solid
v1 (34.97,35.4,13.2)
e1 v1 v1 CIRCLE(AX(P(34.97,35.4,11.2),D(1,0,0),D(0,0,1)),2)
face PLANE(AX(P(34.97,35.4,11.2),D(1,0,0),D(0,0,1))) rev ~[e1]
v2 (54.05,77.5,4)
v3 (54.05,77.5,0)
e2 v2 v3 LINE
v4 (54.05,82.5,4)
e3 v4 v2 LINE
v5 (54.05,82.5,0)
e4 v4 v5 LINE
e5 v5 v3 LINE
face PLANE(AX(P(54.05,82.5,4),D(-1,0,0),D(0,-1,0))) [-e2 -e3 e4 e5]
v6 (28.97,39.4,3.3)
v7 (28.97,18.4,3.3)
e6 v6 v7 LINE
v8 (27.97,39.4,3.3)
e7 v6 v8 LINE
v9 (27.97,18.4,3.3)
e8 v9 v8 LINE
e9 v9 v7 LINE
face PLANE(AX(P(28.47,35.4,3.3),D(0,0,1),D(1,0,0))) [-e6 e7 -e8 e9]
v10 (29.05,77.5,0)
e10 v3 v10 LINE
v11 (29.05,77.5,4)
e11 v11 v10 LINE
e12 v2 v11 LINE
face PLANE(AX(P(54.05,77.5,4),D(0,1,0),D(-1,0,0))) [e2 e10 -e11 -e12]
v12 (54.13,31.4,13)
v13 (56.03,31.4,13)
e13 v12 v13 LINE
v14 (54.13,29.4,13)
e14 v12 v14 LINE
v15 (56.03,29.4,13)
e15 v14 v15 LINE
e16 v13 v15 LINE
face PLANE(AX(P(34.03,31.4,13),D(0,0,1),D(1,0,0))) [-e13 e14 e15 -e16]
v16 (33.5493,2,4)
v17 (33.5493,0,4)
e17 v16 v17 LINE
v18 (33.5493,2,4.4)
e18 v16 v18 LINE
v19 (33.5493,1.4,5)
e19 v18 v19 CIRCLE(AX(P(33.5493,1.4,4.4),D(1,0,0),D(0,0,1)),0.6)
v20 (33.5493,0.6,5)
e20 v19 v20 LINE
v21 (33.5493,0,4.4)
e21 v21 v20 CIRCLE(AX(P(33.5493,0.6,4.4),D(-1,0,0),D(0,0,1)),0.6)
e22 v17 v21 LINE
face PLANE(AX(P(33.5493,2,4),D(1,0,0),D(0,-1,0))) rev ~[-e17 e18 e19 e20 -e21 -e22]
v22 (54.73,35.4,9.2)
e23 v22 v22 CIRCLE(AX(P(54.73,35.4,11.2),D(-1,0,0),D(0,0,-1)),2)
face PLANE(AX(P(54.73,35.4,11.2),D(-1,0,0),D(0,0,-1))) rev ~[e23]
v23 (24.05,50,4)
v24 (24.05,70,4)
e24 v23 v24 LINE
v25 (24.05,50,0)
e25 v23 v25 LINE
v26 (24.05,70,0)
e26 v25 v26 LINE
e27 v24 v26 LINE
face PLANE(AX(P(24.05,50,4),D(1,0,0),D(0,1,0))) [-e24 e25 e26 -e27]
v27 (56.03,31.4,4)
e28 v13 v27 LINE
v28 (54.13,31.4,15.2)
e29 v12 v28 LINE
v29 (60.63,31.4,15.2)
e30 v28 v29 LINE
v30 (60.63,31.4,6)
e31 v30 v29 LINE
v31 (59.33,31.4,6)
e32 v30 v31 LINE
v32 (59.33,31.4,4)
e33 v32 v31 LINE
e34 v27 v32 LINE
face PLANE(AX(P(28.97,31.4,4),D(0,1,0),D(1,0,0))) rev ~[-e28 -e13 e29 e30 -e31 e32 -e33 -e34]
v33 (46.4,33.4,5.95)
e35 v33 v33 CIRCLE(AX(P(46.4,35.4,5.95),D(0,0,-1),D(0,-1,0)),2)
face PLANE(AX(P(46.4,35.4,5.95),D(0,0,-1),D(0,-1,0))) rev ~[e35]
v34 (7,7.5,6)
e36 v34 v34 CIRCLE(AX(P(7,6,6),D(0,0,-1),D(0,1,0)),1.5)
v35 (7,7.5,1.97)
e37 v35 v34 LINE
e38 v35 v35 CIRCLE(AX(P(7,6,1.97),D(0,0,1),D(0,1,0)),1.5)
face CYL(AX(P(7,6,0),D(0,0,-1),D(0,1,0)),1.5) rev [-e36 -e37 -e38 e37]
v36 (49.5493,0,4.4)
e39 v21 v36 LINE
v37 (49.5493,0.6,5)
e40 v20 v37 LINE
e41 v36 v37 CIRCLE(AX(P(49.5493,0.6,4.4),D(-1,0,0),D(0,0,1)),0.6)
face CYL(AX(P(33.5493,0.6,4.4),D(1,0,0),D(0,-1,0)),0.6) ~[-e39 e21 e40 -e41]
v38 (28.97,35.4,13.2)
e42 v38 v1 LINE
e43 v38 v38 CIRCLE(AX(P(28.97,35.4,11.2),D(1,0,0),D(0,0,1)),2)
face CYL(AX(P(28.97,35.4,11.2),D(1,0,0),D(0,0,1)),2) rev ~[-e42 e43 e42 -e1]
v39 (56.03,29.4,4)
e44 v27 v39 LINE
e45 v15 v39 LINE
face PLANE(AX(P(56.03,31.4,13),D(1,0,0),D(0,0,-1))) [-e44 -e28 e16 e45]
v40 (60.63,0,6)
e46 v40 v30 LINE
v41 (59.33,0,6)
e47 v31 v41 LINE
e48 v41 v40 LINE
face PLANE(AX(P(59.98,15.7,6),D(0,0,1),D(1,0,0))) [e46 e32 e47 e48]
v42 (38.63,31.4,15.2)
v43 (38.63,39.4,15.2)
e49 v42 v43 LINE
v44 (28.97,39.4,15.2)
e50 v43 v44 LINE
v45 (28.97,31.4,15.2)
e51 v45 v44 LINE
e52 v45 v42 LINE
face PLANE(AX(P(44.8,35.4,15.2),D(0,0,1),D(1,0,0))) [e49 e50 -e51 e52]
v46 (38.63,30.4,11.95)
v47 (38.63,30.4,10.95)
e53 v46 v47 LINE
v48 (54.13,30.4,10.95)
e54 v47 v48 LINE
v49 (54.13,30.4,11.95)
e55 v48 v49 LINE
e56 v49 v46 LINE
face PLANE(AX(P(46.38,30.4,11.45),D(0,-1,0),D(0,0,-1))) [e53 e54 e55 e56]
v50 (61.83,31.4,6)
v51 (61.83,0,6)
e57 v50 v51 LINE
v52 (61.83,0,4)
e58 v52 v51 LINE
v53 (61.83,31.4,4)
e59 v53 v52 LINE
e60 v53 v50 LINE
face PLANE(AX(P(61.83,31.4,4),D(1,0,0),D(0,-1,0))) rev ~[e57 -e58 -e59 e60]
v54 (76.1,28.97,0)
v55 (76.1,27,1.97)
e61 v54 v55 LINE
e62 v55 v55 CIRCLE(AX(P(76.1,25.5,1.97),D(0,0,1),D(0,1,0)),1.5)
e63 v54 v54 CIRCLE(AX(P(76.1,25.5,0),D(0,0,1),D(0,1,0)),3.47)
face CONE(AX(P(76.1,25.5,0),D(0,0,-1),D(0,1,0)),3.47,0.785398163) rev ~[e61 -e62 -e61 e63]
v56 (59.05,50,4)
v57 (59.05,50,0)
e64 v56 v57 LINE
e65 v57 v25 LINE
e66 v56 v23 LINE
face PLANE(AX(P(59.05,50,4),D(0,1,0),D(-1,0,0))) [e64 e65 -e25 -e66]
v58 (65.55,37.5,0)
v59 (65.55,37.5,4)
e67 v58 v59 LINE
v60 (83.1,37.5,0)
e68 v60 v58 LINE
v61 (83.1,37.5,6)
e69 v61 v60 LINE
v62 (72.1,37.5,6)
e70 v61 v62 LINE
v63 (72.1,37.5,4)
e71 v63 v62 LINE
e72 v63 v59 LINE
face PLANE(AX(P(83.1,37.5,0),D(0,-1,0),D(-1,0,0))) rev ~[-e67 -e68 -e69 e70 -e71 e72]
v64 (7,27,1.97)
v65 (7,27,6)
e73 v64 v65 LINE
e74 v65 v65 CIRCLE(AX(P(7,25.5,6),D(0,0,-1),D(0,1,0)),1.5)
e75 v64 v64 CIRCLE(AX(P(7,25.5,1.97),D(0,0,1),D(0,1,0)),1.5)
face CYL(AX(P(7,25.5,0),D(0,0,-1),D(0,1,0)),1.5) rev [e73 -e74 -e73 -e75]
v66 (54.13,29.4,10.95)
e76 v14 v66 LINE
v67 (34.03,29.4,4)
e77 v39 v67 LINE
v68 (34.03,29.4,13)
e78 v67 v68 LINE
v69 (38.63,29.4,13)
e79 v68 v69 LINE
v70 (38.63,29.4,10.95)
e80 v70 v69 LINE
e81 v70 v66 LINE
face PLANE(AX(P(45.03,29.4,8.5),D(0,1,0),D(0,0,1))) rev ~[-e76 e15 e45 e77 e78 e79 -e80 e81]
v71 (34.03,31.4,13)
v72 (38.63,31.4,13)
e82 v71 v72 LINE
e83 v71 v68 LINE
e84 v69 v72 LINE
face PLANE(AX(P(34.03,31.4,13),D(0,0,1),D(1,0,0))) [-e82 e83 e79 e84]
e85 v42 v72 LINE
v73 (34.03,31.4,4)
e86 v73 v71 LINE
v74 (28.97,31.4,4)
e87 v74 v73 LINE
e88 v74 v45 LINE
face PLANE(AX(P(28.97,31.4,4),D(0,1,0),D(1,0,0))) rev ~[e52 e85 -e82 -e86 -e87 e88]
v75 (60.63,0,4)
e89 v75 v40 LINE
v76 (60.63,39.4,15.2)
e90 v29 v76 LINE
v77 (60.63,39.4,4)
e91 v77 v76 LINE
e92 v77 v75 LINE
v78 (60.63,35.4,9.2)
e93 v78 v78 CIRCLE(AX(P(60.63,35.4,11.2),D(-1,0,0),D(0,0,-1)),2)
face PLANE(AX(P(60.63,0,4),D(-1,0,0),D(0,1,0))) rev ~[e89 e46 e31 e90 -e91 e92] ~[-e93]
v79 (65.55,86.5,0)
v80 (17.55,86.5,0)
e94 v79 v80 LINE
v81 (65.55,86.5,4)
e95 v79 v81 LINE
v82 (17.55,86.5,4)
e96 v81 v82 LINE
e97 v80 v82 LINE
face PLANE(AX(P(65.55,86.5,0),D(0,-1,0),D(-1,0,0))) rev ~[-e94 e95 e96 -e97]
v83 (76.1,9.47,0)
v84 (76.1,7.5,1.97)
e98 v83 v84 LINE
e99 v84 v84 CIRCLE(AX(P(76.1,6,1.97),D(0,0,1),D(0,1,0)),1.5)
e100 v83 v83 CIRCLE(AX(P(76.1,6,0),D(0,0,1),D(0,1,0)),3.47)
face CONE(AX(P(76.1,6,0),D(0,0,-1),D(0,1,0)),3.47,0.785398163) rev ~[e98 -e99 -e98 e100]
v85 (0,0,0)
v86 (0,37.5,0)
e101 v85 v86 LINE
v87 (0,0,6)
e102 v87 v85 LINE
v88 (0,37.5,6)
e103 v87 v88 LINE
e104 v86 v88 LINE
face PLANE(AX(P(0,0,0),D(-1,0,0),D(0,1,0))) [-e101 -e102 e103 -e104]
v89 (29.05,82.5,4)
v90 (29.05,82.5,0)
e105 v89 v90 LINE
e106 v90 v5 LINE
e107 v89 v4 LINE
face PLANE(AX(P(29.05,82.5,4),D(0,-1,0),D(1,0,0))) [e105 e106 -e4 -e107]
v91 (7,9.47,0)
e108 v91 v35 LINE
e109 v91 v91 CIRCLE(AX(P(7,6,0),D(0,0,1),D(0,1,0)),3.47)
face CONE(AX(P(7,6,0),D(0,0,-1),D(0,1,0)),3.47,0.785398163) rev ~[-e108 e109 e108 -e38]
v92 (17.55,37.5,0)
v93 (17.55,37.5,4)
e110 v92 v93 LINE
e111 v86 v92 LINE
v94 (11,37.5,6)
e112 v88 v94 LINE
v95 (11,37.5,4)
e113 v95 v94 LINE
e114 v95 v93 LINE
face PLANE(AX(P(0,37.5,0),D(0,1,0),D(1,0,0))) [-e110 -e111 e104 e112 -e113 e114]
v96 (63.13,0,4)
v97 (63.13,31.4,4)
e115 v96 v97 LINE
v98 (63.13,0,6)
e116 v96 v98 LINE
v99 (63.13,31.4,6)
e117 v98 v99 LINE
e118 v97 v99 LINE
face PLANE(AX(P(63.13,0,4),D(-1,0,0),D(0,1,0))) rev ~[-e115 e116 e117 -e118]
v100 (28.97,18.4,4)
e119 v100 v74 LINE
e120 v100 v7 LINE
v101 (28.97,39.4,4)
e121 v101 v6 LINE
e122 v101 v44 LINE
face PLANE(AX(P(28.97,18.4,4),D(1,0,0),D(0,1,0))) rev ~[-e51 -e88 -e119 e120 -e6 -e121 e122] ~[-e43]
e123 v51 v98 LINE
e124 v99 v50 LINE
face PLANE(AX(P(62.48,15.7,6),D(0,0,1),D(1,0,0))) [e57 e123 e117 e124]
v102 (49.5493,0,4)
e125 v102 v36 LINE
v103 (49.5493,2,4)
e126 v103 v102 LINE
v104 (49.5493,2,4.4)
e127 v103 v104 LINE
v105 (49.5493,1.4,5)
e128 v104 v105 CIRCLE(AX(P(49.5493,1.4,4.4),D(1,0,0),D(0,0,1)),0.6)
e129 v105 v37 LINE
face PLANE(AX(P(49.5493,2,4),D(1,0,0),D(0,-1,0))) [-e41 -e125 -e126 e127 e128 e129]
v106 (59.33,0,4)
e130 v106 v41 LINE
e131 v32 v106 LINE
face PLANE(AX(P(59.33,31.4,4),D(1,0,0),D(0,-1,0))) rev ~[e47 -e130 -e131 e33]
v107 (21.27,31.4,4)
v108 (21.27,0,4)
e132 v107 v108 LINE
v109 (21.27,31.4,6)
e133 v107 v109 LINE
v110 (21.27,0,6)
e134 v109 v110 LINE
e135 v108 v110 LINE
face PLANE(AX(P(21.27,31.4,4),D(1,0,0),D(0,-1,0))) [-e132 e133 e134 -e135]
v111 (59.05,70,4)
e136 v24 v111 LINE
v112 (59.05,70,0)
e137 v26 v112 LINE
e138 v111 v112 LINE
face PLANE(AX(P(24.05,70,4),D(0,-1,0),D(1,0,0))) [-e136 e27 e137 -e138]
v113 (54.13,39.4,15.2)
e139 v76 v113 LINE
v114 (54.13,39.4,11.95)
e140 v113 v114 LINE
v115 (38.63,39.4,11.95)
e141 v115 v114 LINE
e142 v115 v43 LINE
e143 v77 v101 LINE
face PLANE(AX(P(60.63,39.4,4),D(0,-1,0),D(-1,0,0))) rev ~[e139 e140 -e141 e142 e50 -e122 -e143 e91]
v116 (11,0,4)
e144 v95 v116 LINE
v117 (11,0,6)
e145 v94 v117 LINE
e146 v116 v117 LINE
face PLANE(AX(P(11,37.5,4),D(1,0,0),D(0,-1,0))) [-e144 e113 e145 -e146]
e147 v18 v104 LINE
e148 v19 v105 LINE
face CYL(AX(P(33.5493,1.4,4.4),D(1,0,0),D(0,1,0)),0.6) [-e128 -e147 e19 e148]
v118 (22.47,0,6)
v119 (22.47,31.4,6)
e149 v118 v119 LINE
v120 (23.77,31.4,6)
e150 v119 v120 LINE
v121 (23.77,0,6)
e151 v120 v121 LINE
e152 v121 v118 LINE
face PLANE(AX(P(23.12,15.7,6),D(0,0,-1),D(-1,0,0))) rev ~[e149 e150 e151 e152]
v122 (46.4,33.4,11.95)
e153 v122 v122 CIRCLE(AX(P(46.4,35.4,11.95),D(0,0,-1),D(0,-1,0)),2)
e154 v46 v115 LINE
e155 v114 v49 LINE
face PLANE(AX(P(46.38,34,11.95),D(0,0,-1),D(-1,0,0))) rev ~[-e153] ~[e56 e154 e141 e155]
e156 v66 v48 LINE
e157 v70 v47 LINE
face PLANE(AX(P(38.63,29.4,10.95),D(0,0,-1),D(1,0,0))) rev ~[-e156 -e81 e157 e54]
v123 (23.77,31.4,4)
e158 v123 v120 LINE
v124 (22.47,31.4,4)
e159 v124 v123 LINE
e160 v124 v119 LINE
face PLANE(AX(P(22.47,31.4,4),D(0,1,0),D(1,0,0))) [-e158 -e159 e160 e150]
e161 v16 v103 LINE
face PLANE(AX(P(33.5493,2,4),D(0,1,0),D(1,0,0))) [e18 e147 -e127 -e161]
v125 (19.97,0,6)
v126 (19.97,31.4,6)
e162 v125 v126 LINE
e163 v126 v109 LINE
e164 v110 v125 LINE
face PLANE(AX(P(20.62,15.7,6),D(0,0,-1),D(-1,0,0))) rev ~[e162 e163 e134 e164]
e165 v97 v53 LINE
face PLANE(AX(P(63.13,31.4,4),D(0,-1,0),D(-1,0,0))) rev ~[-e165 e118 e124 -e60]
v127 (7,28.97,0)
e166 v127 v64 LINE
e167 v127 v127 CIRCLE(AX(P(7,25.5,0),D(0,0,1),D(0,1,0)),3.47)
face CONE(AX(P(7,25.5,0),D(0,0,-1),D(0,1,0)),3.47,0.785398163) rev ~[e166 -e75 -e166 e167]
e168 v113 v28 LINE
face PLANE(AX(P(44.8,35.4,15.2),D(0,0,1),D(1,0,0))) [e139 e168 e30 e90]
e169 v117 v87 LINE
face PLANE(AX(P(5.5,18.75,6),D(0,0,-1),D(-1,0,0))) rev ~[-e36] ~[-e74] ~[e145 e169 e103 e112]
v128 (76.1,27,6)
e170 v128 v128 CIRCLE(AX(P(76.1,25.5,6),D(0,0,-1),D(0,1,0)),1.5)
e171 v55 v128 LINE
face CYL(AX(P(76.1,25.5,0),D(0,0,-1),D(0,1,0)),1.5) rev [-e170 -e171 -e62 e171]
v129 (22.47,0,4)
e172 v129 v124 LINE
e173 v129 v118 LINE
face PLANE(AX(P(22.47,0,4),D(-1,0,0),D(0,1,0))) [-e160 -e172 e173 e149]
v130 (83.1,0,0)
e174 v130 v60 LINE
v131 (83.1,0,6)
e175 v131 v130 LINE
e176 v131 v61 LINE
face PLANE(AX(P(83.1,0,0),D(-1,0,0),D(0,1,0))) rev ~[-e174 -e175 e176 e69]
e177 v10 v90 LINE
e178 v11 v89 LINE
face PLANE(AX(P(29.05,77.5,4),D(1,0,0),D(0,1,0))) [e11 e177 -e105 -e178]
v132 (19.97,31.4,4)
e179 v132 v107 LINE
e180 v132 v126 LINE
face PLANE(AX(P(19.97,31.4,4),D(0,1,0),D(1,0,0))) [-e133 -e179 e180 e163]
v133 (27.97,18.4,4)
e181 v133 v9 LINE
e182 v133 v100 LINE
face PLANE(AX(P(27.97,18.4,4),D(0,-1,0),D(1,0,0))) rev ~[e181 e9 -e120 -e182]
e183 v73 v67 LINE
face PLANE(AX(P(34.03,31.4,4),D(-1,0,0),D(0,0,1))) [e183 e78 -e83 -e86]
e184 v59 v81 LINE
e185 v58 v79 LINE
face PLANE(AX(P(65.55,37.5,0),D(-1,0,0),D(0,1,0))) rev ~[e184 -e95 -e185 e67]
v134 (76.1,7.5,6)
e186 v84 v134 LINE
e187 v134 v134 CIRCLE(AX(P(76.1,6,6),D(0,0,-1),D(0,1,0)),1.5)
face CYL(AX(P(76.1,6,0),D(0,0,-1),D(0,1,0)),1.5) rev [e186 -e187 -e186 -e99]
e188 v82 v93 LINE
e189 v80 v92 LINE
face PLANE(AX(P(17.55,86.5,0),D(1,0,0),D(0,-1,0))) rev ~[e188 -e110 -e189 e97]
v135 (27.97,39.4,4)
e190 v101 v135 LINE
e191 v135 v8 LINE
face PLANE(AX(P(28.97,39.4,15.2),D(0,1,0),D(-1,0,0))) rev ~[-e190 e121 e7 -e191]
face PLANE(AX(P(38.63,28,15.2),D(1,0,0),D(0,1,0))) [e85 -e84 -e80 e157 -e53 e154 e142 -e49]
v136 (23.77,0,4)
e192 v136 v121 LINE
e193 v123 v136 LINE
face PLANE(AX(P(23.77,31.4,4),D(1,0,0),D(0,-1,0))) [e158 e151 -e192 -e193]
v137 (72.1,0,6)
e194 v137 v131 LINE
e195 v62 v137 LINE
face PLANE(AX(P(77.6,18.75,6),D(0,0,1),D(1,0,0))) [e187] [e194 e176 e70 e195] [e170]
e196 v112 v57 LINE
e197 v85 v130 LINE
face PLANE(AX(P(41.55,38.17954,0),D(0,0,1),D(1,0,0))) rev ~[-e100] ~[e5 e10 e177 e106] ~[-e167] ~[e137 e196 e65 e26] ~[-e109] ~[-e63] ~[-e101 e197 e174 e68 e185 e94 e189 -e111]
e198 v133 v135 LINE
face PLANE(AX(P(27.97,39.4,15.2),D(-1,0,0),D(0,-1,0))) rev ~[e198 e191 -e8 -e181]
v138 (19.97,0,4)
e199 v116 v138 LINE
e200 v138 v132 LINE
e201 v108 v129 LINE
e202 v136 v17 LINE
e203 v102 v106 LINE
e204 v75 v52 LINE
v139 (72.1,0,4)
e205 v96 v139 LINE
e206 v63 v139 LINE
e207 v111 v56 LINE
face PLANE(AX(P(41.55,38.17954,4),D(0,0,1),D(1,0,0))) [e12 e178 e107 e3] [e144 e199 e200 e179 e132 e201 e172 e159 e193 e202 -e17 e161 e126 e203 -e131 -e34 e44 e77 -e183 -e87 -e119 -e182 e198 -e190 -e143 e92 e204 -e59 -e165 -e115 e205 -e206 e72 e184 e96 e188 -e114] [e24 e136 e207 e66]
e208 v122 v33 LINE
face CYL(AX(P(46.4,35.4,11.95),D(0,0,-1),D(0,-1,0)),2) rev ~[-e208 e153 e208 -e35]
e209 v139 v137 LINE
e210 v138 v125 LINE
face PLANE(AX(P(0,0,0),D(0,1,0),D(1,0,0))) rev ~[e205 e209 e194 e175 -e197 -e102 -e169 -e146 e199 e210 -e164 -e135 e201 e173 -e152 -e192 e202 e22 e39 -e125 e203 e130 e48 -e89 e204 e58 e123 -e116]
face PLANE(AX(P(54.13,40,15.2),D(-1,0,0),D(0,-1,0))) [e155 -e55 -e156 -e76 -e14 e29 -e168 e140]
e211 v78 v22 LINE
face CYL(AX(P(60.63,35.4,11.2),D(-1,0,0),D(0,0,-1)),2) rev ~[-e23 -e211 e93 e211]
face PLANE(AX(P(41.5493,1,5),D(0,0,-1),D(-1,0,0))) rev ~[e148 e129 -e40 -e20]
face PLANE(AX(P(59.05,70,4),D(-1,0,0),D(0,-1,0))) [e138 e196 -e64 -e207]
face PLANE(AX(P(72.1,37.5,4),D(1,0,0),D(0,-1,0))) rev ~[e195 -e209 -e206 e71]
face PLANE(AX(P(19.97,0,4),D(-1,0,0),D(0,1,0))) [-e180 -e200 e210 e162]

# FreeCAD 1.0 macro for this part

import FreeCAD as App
import Part
import Sketcher
from FreeCAD import Vector
Q = App.Units.Quantity


def edges_at(feature, points):
    """Names of the edges that pass closest to the given points."""
    edges = feature.Shape.Edges
    near = lambda p: min(range(len(edges)), key=lambda i: edges[i].distToShape(Part.Vertex(*p))[0])
    return sorted({f"Edge{near(p) + 1}" for p in points})


def add_polygon(sketch, points):
    """Adds a closed chain of lines whose ends are joined by coincident constraints."""
    first, n = sketch.GeometryCount, len(points)
    for a, b in zip(points, points[1:] + points[:1]):
        sketch.addGeometry(Part.LineSegment(App.Vector(*a, 0), App.Vector(*b, 0)), False)
    for i in range(n):
        sketch.addConstraint(Sketcher.Constraint("Coincident", first + i, 2, first + (i + 1) % n, 1))

doc = App.newDocument("Part")
params = doc.addObject("Spreadsheet::Sheet", "Params")
for row, (alias, value) in enumerate([
    ("sketch1_width", "48 mm"),
    ("sketch1_height", "49 mm"),
    ("sketch1_width2", "83.1 mm"),
    ("sketch1_height2", "37.5 mm"),
    ("pad1_length", "4 mm"),
    ("sketch2_width", "11 mm"),
    ("sketch2_width2", "1.3 mm"),
    ("sketch2_height", "37.5 mm"),
    ("sketch2_height2", "31.4 mm"),
    ("pad2_length", "2 mm"),
    ("sketch3_height", "8 mm"),
    ("sketch3_width", "31.66 mm"),
    ("pad3_length", "11.2 mm"),
    ("sketch4_diameter", "4 mm"),
    ("hole_diameter", "4 mm"),
    ("hole_depth", "5.9 mm"),
    ("sketch5_width", "25 mm"),
    ("sketch5_width2", "35 mm"),
    ("sketch5_height", "5 mm"),
    ("sketch5_height2", "20 mm"),
    ("sketch6_diameter", "3 mm"),
    ("hole2_diameter", "3 mm"),
    ("hole2_csink_diameter", "6.94 mm"),
    ("sketch7_diameter", "3 mm"),
    ("hole3_diameter", "3 mm"),
    ("hole3_csink_diameter", "6.94 mm"),
    ("sketch8_diameter", "3 mm"),
    ("hole4_diameter", "3 mm"),
    ("hole4_csink_diameter", "6.94 mm"),
    ("sketch9_diameter", "3 mm"),
    ("hole5_diameter", "3 mm"),
    ("hole5_csink_diameter", "6.94 mm"),
    ("sketch10_width", "16 mm"),
    ("sketch10_height", "2 mm"),
    ("pad4_length", "1 mm"),
    ("fillet_radius", "0.6 mm"),
    ("sketch11_width", "1 mm"),
    ("sketch11_height", "13 mm"),
    ("pocket2_length", "0.7 mm"),
    ("sketch12_width", "1 mm"),
    ("sketch12_height", "8 mm"),
    ("pocket3_length", "11.9 mm"),
    ("sketch13_diameter", "4 mm"),
    ("hole6_diameter", "4 mm"),
    ("hole6_depth", "6 mm"),
    ("sketch14_width", "22 mm"),
    ("sketch14_height", "9 mm"),
    ("pad5_length", "2 mm"),
    ("sketch15_height", "12 mm"),
    ("sketch15_width", "15.5 mm"),
    ("pocket4_length", "3.25 mm"),
    ("sketch16_height", "1 mm"),
    ("sketch16_width", "15.5 mm"),
    ("pocket5_length", "1 mm"),
    ("sketch17_diameter", "4 mm"),
    ("hole7_diameter", "4 mm"),
    ("hole7_depth", "6 mm"),
], start=1):
    params.set(f"A{row}", alias)
    params.set(f"B{row}", "=" + value)
    params.setAlias(f"B{row}", alias)

body = doc.addObject("PartDesign::Body", "Body")

# Sketch on XY plane
sketch1 = doc.addObject("Sketcher::SketchObject", "Sketch")
body.addObject(sketch1)
sketch1.AttachmentSupport = (doc.XY_Plane, [""])
sketch1.MapMode = "FlatFace"
add_polygon(sketch1, [(83, 0), (83, 38), (66, 38), (66, 86), (18, 86), (18, 38), (0, 38), (0, 0)])  # lines 0-7
sketch1.addConstraint(Sketcher.Constraint("Vertical", 0))
sketch1.addConstraint(Sketcher.Constraint("Horizontal", 1))
sketch1.addConstraint(Sketcher.Constraint("Vertical", 2))
sketch1.addConstraint(Sketcher.Constraint("Horizontal", 3))
sketch1.addConstraint(Sketcher.Constraint("Vertical", 4))
sketch1.addConstraint(Sketcher.Constraint("Horizontal", 5))
sketch1.addConstraint(Sketcher.Constraint("Vertical", 6))
sketch1.addConstraint(Sketcher.Constraint("Horizontal", 7))
sketch1.addConstraint(Sketcher.Constraint("Coincident", 6, 2, -1, 1))
sketch1.addConstraint(Sketcher.Constraint("Horizontal", 1, 2, 4, 2))
sketch1.addConstraint(Sketcher.Constraint("Equal", 1, 5))
sketch1.addConstraint(Sketcher.Constraint("DistanceX", 3, 2, 3, 1, Q("48 mm")))
sketch1.addConstraint(Sketcher.Constraint("DistanceY", 2, 1, 2, 2, Q("49 mm")))
sketch1.addConstraint(Sketcher.Constraint("DistanceX", 7, 1, 7, 2, Q("83.1 mm")))
sketch1.addConstraint(Sketcher.Constraint("DistanceY", 0, 1, 0, 2, Q("37.5 mm")))
sketch1.setExpression("Constraints[19]", "Params.sketch1_width")
sketch1.setExpression("Constraints[20]", "Params.sketch1_height")
sketch1.setExpression("Constraints[21]", "Params.sketch1_width2")
sketch1.setExpression("Constraints[22]", "Params.sketch1_height2")
pad1 = doc.addObject("PartDesign::Pad", "Pad")
body.addObject(pad1)
pad1.Profile = sketch1
pad1.setExpression("Length", "Params.pad1_length")

# Sketch on XY plane
sketch2 = doc.addObject("Sketcher::SketchObject", "Sketch001")
body.addObject(sketch2)
sketch2.AttachmentSupport = (doc.XY_Plane, [""])
sketch2.MapMode = "FlatFace"
sketch2.AttachmentOffset = App.Placement(Vector(0, 0, 4), App.Rotation())
add_polygon(sketch2, [(11, 0), (11, 37.5), (0, 37.5), (0, 0)])  # lines 0-3
add_polygon(sketch2, [(20, 31.4), (20, 0), (21.3, 0), (21.3, 31.4)])  # lines 4-7
add_polygon(sketch2, [(23.8, 0), (23.8, 31.4), (22.5, 31.4), (22.5, 0)])  # lines 8-11
add_polygon(sketch2, [(60.6, 31.4), (59.3, 31.4), (59.3, 0), (60.6, 0)])  # lines 12-15
add_polygon(sketch2, [(61.8, 0), (63.1, 0), (63.1, 31.4), (61.8, 31.4)])  # lines 16-19
add_polygon(sketch2, [(83.1, 37.5), (72.1, 37.5), (72.1, 0), (83.1, 0)])  # lines 20-23
sketch2.addConstraint(Sketcher.Constraint("Vertical", 0))
sketch2.addConstraint(Sketcher.Constraint("Horizontal", 1))
sketch2.addConstraint(Sketcher.Constraint("Vertical", 2))
sketch2.addConstraint(Sketcher.Constraint("Horizontal", 3))
sketch2.addConstraint(Sketcher.Constraint("Vertical", 4))
sketch2.addConstraint(Sketcher.Constraint("Horizontal", 5))
sketch2.addConstraint(Sketcher.Constraint("Vertical", 6))
sketch2.addConstraint(Sketcher.Constraint("Horizontal", 7))
sketch2.addConstraint(Sketcher.Constraint("Vertical", 8))
sketch2.addConstraint(Sketcher.Constraint("Horizontal", 9))
sketch2.addConstraint(Sketcher.Constraint("Vertical", 10))
sketch2.addConstraint(Sketcher.Constraint("Horizontal", 11))
sketch2.addConstraint(Sketcher.Constraint("Horizontal", 12))
sketch2.addConstraint(Sketcher.Constraint("Vertical", 13))
sketch2.addConstraint(Sketcher.Constraint("Horizontal", 14))
sketch2.addConstraint(Sketcher.Constraint("Vertical", 15))
sketch2.addConstraint(Sketcher.Constraint("Horizontal", 16))
sketch2.addConstraint(Sketcher.Constraint("Vertical", 17))
sketch2.addConstraint(Sketcher.Constraint("Horizontal", 18))
sketch2.addConstraint(Sketcher.Constraint("Vertical", 19))
sketch2.addConstraint(Sketcher.Constraint("Horizontal", 20))
sketch2.addConstraint(Sketcher.Constraint("Vertical", 21))
sketch2.addConstraint(Sketcher.Constraint("Horizontal", 22))
sketch2.addConstraint(Sketcher.Constraint("Vertical", 23))
sketch2.addConstraint(Sketcher.Constraint("Coincident", 2, 2, -1, 1))
sketch2.addConstraint(Sketcher.Constraint("PointOnObject", 4, 2, -1))
sketch2.addConstraint(Sketcher.Constraint("PointOnObject", 10, 2, -1))
sketch2.addConstraint(Sketcher.Constraint("PointOnObject", 13, 2, -1))
sketch2.addConstraint(Sketcher.Constraint("PointOnObject", 16, 2, -1))
sketch2.addConstraint(Sketcher.Constraint("PointOnObject", 21, 2, -1))
sketch2.addConstraint(Sketcher.Constraint("Horizontal", 7, 2, 8, 2))
sketch2.addConstraint(Sketcher.Constraint("Horizontal", 9, 2, 12, 2))
sketch2.addConstraint(Sketcher.Constraint("Horizontal", 15, 2, 17, 2))
sketch2.addConstraint(Sketcher.Constraint("Horizontal", 1, 2, 20, 2))
sketch2.addConstraint(Sketcher.Constraint("Equal", 7, 9))
sketch2.addConstraint(Sketcher.Constraint("Equal", 11, 12))
sketch2.addConstraint(Sketcher.Constraint("Equal", 14, 16))
sketch2.addConstraint(Sketcher.Constraint("Equal", 3, 20))
sketch2.addConstraint(Sketcher.Constraint("DistanceX", 1, 2, 1, 1, Q("11 mm")))
sketch2.addConstraint(Sketcher.Constraint("DistanceX", 5, 1, 5, 2, Q("1.3 mm")))
sketch2.addConstraint(Sketcher.Constraint("DistanceY", 0, 1, 0, 2, Q("37.5 mm")))
sketch2.addConstraint(Sketcher.Constraint("DistanceY", 4, 2, 4, 1, Q("31.4 mm")))
sketch2.addConstraint(Sketcher.Constraint("DistanceX", -1, 1, 20, 2, Q("72.1 mm")))
sketch2.addConstraint(Sketcher.Constraint("DistanceX", 6, 2, 8, 2, Q("2.5 mm")))
sketch2.addConstraint(Sketcher.Constraint("DistanceX", 14, 2, 16, 2, Q("2.5 mm")))
sketch2.addConstraint(Sketcher.Constraint("DistanceX", -1, 1, 4, 2, Q("19.97 mm")))
sketch2.addConstraint(Sketcher.Constraint("DistanceX", -1, 1, 12, 2, Q("59.33 mm")))
sketch2.setExpression("Constraints[62]", "Params.sketch2_width")
sketch2.setExpression("Constraints[63]", "Params.sketch2_width2")
sketch2.setExpression("Constraints[64]", "Params.sketch2_height")
sketch2.setExpression("Constraints[65]", "Params.sketch2_height2")
pad2 = doc.addObject("PartDesign::Pad", "Pad001")
body.addObject(pad2)
pad2.Profile = sketch2
pad2.setExpression("Length", "Params.pad2_length")

# Sketch on XY plane
sketch3 = doc.addObject("Sketcher::SketchObject", "Sketch002")
body.addObject(sketch3)
sketch3.AttachmentSupport = (doc.XY_Plane, [""])
sketch3.MapMode = "FlatFace"
sketch3.AttachmentOffset = App.Placement(Vector(0, 0, 4), App.Rotation())
add_polygon(sketch3, [(29, 39), (29, 31), (61, 31), (61, 39)])  # lines 0-3
sketch3.addConstraint(Sketcher.Constraint("Vertical", 0))
sketch3.addConstraint(Sketcher.Constraint("Horizontal", 1))
sketch3.addConstraint(Sketcher.Constraint("Vertical", 2))
sketch3.addConstraint(Sketcher.Constraint("Horizontal", 3))
sketch3.addConstraint(Sketcher.Constraint("DistanceY", 0, 2, 0, 1, Q("8 mm")))
sketch3.addConstraint(Sketcher.Constraint("DistanceX", 1, 1, 1, 2, Q("31.66 mm")))
sketch3.addConstraint(Sketcher.Constraint("DistanceY", -1, 1, 0, 2, Q("31.4 mm")))
sketch3.addConstraint(Sketcher.Constraint("DistanceX", -1, 1, 0, 2, Q("28.97 mm")))
sketch3.setExpression("Constraints[8]", "Params.sketch3_height")
sketch3.setExpression("Constraints[9]", "Params.sketch3_width")
pad3 = doc.addObject("PartDesign::Pad", "Pad002")
body.addObject(pad3)
pad3.Profile = sketch3
pad3.setExpression("Length", "Params.pad3_length")

# Sketch on YZ plane
sketch4 = doc.addObject("Sketcher::SketchObject", "Sketch003")
body.addObject(sketch4)
sketch4.AttachmentSupport = (doc.YZ_Plane, [""])
sketch4.MapMode = "FlatFace"
sketch4.AttachmentOffset = App.Placement(Vector(0, 0, 60.63), App.Rotation())
sketch4.addGeometry(Part.Circle(Vector(35.4, 11.2, 0), Vector(0, 0, 1), 2), False)
sketch4.addConstraint(Sketcher.Constraint("Diameter", 0, Q("4 mm")))
sketch4.addConstraint(Sketcher.Constraint("DistanceX", -1, 1, 0, 3, Q("35.4 mm")))
sketch4.addConstraint(Sketcher.Constraint("DistanceY", -1, 1, 0, 3, Q("11.2 mm")))
sketch4.setExpression("Constraints[0]", "Params.sketch4_diameter")
doc.recompute()
hole = doc.addObject("PartDesign::Hole", "Hole")
body.addObject(hole)
hole.Profile = sketch4
hole.ThreadType = "None"
hole.setExpression("Diameter", "Params.hole_diameter")
hole.DepthType = "Dimension"
hole.setExpression("Depth", "Params.hole_depth")
hole.DrillPoint = "Flat"

# Sketch on XY plane
sketch5 = doc.addObject("Sketcher::SketchObject", "Sketch004")
body.addObject(sketch5)
sketch5.AttachmentSupport = (doc.XY_Plane, [""])
sketch5.MapMode = "FlatFace"
sketch5.AttachmentOffset = App.Placement(Vector(0, 0, 4), App.Rotation())
add_polygon(sketch5, [(29, 78), (54, 78), (54, 82), (29, 82)])  # lines 0-3
add_polygon(sketch5, [(59, 70), (24, 70), (24, 50), (59, 50)])  # lines 4-7
sketch5.addConstraint(Sketcher.Constraint("Horizontal", 0))
sketch5.addConstraint(Sketcher.Constraint("Vertical", 1))
sketch5.addConstraint(Sketcher.Constraint("Horizontal", 2))
sketch5.addConstraint(Sketcher.Constraint("Vertical", 3))
sketch5.addConstraint(Sketcher.Constraint("Horizontal", 4))
sketch5.addConstraint(Sketcher.Constraint("Vertical", 5))
sketch5.addConstraint(Sketcher.Constraint("Horizontal", 6))
sketch5.addConstraint(Sketcher.Constraint("Vertical", 7))
sketch5.addConstraint(Sketcher.Constraint("DistanceX", 0, 1, 0, 2, Q("25 mm")))
sketch5.addConstraint(Sketcher.Constraint("DistanceX", 4, 2, 4, 1, Q("35 mm")))
sketch5.addConstraint(Sketcher.Constraint("DistanceY", 1, 1, 1, 2, Q("5 mm")))
sketch5.addConstraint(Sketcher.Constraint("DistanceY", 5, 2, 5, 1, Q("20 mm")))
sketch5.addConstraint(Sketcher.Constraint("DistanceY", -1, 1, 4, 2, Q("70 mm")))
sketch5.addConstraint(Sketcher.Constraint("DistanceX", 4, 2, 3, 2, Q("5 mm")))
sketch5.addConstraint(Sketcher.Constraint("DistanceY", -1, 1, 0, 2, Q("77.5 mm")))
sketch5.addConstraint(Sketcher.Constraint("DistanceX", -1, 1, 0, 2, Q("54.05 mm")))
sketch5.setExpression("Constraints[16]", "Params.sketch5_width")
sketch5.setExpression("Constraints[17]", "Params.sketch5_width2")
sketch5.setExpression("Constraints[18]", "Params.sketch5_height")
sketch5.setExpression("Constraints[19]", "Params.sketch5_height2")
pocket1 = doc.addObject("PartDesign::Pocket", "Pocket")
body.addObject(pocket1)
pocket1.Profile = sketch5
pocket1.Type = "ThroughAll"

# Sketch on XY plane
sketch6 = doc.addObject("Sketcher::SketchObject", "Sketch005")
body.addObject(sketch6)
sketch6.AttachmentSupport = (doc.XY_Plane, [""])
sketch6.MapMode = "FlatFace"
sketch6.addGeometry(Part.Circle(Vector(7, 6, 0), Vector(0, 0, 1), 1.5), False)
sketch6.addConstraint(Sketcher.Constraint("Diameter", 0, Q("3 mm")))
sketch6.addConstraint(Sketcher.Constraint("DistanceX", -1, 1, 0, 3, Q("7 mm")))
sketch6.addConstraint(Sketcher.Constraint("DistanceY", -1, 1, 0, 3, Q("6 mm")))
sketch6.setExpression("Constraints[0]", "Params.sketch6_diameter")
doc.recompute()
hole2 = doc.addObject("PartDesign::Hole", "Hole001")
body.addObject(hole2)
hole2.Profile = sketch6
hole2.ThreadType = "None"
hole2.setExpression("Diameter", "Params.hole2_diameter")
hole2.DepthType = "ThroughAll"
hole2.HoleCutType = "Countersink"
hole2.setExpression("HoleCutDiameter", "Params.hole2_csink_diameter")
hole2.HoleCutCountersinkAngle = 90
hole2.Reversed = True

# Sketch on XY plane
sketch7 = doc.addObject("Sketcher::SketchObject", "Sketch006")
body.addObject(sketch7)
sketch7.AttachmentSupport = (doc.XY_Plane, [""])
sketch7.MapMode = "FlatFace"
sketch7.addGeometry(Part.Circle(Vector(7, 25.5, 0), Vector(0, 0, 1), 1.5), False)
sketch7.addConstraint(Sketcher.Constraint("Diameter", 0, Q("3 mm")))
sketch7.addConstraint(Sketcher.Constraint("DistanceX", -1, 1, 0, 3, Q("7 mm")))
sketch7.addConstraint(Sketcher.Constraint("DistanceY", -1, 1, 0, 3, Q("25.5 mm")))
sketch7.setExpression("Constraints[0]", "Params.sketch7_diameter")
doc.recompute()
hole3 = doc.addObject("PartDesign::Hole", "Hole002")
body.addObject(hole3)
hole3.Profile = sketch7
hole3.ThreadType = "None"
hole3.setExpression("Diameter", "Params.hole3_diameter")
hole3.DepthType = "ThroughAll"
hole3.HoleCutType = "Countersink"
hole3.setExpression("HoleCutDiameter", "Params.hole3_csink_diameter")
hole3.HoleCutCountersinkAngle = 90
hole3.Reversed = True

# Sketch on XY plane
sketch8 = doc.addObject("Sketcher::SketchObject", "Sketch007")
body.addObject(sketch8)
sketch8.AttachmentSupport = (doc.XY_Plane, [""])
sketch8.MapMode = "FlatFace"
sketch8.addGeometry(Part.Circle(Vector(76.1, 6, 0), Vector(0, 0, 1), 1.5), False)
sketch8.addConstraint(Sketcher.Constraint("Diameter", 0, Q("3 mm")))
sketch8.addConstraint(Sketcher.Constraint("DistanceY", -1, 1, 0, 3, Q("6 mm")))
sketch8.addConstraint(Sketcher.Constraint("DistanceX", -1, 1, 0, 3, Q("76.1 mm")))
sketch8.setExpression("Constraints[0]", "Params.sketch8_diameter")
doc.recompute()
hole4 = doc.addObject("PartDesign::Hole", "Hole003")
body.addObject(hole4)
hole4.Profile = sketch8
hole4.ThreadType = "None"
hole4.setExpression("Diameter", "Params.hole4_diameter")
hole4.DepthType = "ThroughAll"
hole4.HoleCutType = "Countersink"
hole4.setExpression("HoleCutDiameter", "Params.hole4_csink_diameter")
hole4.HoleCutCountersinkAngle = 90
hole4.Reversed = True

# Sketch on XY plane
sketch9 = doc.addObject("Sketcher::SketchObject", "Sketch008")
body.addObject(sketch9)
sketch9.AttachmentSupport = (doc.XY_Plane, [""])
sketch9.MapMode = "FlatFace"
sketch9.addGeometry(Part.Circle(Vector(76.1, 25.5, 0), Vector(0, 0, 1), 1.5), False)
sketch9.addConstraint(Sketcher.Constraint("Diameter", 0, Q("3 mm")))
sketch9.addConstraint(Sketcher.Constraint("DistanceX", -1, 1, 0, 3, Q("76.1 mm")))
sketch9.addConstraint(Sketcher.Constraint("DistanceY", -1, 1, 0, 3, Q("25.5 mm")))
sketch9.setExpression("Constraints[0]", "Params.sketch9_diameter")
doc.recompute()
hole5 = doc.addObject("PartDesign::Hole", "Hole004")
body.addObject(hole5)
hole5.Profile = sketch9
hole5.ThreadType = "None"
hole5.setExpression("Diameter", "Params.hole5_diameter")
hole5.DepthType = "ThroughAll"
hole5.HoleCutType = "Countersink"
hole5.setExpression("HoleCutDiameter", "Params.hole5_csink_diameter")
hole5.HoleCutCountersinkAngle = 90
hole5.Reversed = True

# Sketch on XY plane
sketch10 = doc.addObject("Sketcher::SketchObject", "Sketch009")
body.addObject(sketch10)
sketch10.AttachmentSupport = (doc.XY_Plane, [""])
sketch10.MapMode = "FlatFace"
sketch10.AttachmentOffset = App.Placement(Vector(0, 0, 4), App.Rotation())
add_polygon(sketch10, [(49.5, 2), (33.5, 2), (33.5, 0), (49.5, 0)])  # lines 0-3
sketch10.addConstraint(Sketcher.Constraint("Horizontal", 0))
sketch10.addConstraint(Sketcher.Constraint("Vertical", 1))
sketch10.addConstraint(Sketcher.Constraint("Horizontal", 2))
sketch10.addConstraint(Sketcher.Constraint("Vertical", 3))
sketch10.addConstraint(Sketcher.Constraint("PointOnObject", 1, 2, -1))
sketch10.addConstraint(Sketcher.Constraint("DistanceX", 0, 2, 0, 1, Q("16 mm")))
sketch10.addConstraint(Sketcher.Constraint("DistanceY", 1, 2, 1, 1, Q("2 mm")))
sketch10.addConstraint(Sketcher.Constraint("DistanceX", -1, 1, 0, 2, Q("33.5493 mm")))
sketch10.setExpression("Constraints[9]", "Params.sketch10_width")
sketch10.setExpression("Constraints[10]", "Params.sketch10_height")
pad4 = doc.addObject("PartDesign::Pad", "Pad003")
body.addObject(pad4)
pad4.Profile = sketch10
pad4.setExpression("Length", "Params.pad4_length")
doc.recompute()

fillet = doc.addObject("PartDesign::Fillet", "Fillet")
body.addObject(fillet)
fillet.Base = (pad4, edges_at(pad4, [(41.549, 2, 5), (41.549, 0, 5)]))
fillet.setExpression("Radius", "Params.fillet_radius")

# Sketch on XY plane
sketch11 = doc.addObject("Sketcher::SketchObject", "Sketch010")
body.addObject(sketch11)
sketch11.AttachmentSupport = (doc.XY_Plane, [""])
sketch11.MapMode = "FlatFace"
sketch11.AttachmentOffset = App.Placement(Vector(0, 0, 4), App.Rotation())
add_polygon(sketch11, [(28, 18.4), (29, 18.4), (29, 31.4), (28, 31.4)])  # lines 0-3
sketch11.addConstraint(Sketcher.Constraint("Horizontal", 0))
sketch11.addConstraint(Sketcher.Constraint("Vertical", 1))
sketch11.addConstraint(Sketcher.Constraint("Horizontal", 2))
sketch11.addConstraint(Sketcher.Constraint("Vertical", 3))
sketch11.addConstraint(Sketcher.Constraint("DistanceX", 0, 1, 0, 2, Q("1 mm")))
sketch11.addConstraint(Sketcher.Constraint("DistanceY", 1, 1, 1, 2, Q("13 mm")))
sketch11.addConstraint(Sketcher.Constraint("DistanceY", -1, 1, 0, 2, Q("18.4 mm")))
sketch11.addConstraint(Sketcher.Constraint("DistanceX", -1, 1, 0, 2, Q("28.97 mm")))
sketch11.setExpression("Constraints[8]", "Params.sketch11_width")
sketch11.setExpression("Constraints[9]", "Params.sketch11_height")
pocket2 = doc.addObject("PartDesign::Pocket", "Pocket001")
body.addObject(pocket2)
pocket2.Profile = sketch11
pocket2.setExpression("Length", "Params.pocket2_length")

# Sketch on XY plane
sketch12 = doc.addObject("Sketcher::SketchObject", "Sketch011")
body.addObject(sketch12)
sketch12.AttachmentSupport = (doc.XY_Plane, [""])
sketch12.MapMode = "FlatFace"
sketch12.AttachmentOffset = App.Placement(Vector(0, 0, 15.2), App.Rotation())
add_polygon(sketch12, [(29, 39.4), (28, 39.4), (28, 31.4), (29, 31.4)])  # lines 0-3
sketch12.addConstraint(Sketcher.Constraint("Horizontal", 0))
sketch12.addConstraint(Sketcher.Constraint("Vertical", 1))
sketch12.addConstraint(Sketcher.Constraint("Horizontal", 2))
sketch12.addConstraint(Sketcher.Constraint("Vertical", 3))
sketch12.addConstraint(Sketcher.Constraint("DistanceX", 0, 2, 0, 1, Q("1 mm")))
sketch12.addConstraint(Sketcher.Constraint("DistanceY", 1, 2, 1, 1, Q("8 mm")))
sketch12.addConstraint(Sketcher.Constraint("DistanceY", -1, 1, 0, 2, Q("39.4 mm")))
sketch12.addConstraint(Sketcher.Constraint("DistanceX", -1, 1, 0, 2, Q("27.97 mm")))
sketch12.setExpression("Constraints[8]", "Params.sketch12_width")
sketch12.setExpression("Constraints[9]", "Params.sketch12_height")
pocket3 = doc.addObject("PartDesign::Pocket", "Pocket002")
body.addObject(pocket3)
pocket3.Profile = sketch12
pocket3.setExpression("Length", "Params.pocket3_length")

# Sketch on YZ plane
sketch13 = doc.addObject("Sketcher::SketchObject", "Sketch012")
body.addObject(sketch13)
sketch13.AttachmentSupport = (doc.YZ_Plane, [""])
sketch13.MapMode = "FlatFace"
sketch13.AttachmentOffset = App.Placement(Vector(0, 0, 28.97), App.Rotation())
sketch13.addGeometry(Part.Circle(Vector(35.4, 11.2, 0), Vector(0, 0, 1), 2), False)
sketch13.addConstraint(Sketcher.Constraint("Diameter", 0, Q("4 mm")))
sketch13.addConstraint(Sketcher.Constraint("DistanceX", -1, 1, 0, 3, Q("35.4 mm")))
sketch13.addConstraint(Sketcher.Constraint("DistanceY", -1, 1, 0, 3, Q("11.2 mm")))
sketch13.setExpression("Constraints[0]", "Params.sketch13_diameter")
doc.recompute()
hole6 = doc.addObject("PartDesign::Hole", "Hole005")
body.addObject(hole6)
hole6.Profile = sketch13
hole6.ThreadType = "None"
hole6.setExpression("Diameter", "Params.hole6_diameter")
hole6.DepthType = "Dimension"
hole6.setExpression("Depth", "Params.hole6_depth")
hole6.DrillPoint = "Flat"
hole6.Reversed = True

# Sketch on XZ plane
sketch14 = doc.addObject("Sketcher::SketchObject", "Sketch013")
body.addObject(sketch14)
sketch14.AttachmentSupport = (doc.XZ_Plane, [""])
sketch14.MapMode = "FlatFace"
sketch14.AttachmentOffset = App.Placement(Vector(0, 0, -31.4), App.Rotation())
add_polygon(sketch14, [(56, 4), (56, 13), (34, 13), (34, 4)])  # lines 0-3
sketch14.addConstraint(Sketcher.Constraint("Vertical", 0))
sketch14.addConstraint(Sketcher.Constraint("Horizontal", 1))
sketch14.addConstraint(Sketcher.Constraint("Vertical", 2))
sketch14.addConstraint(Sketcher.Constraint("Horizontal", 3))
sketch14.addConstraint(Sketcher.Constraint("DistanceX", 1, 2, 1, 1, Q("22 mm")))
sketch14.addConstraint(Sketcher.Constraint("DistanceY", 0, 1, 0, 2, Q("9 mm")))
sketch14.addConstraint(Sketcher.Constraint("DistanceY", -1, 1, 0, 2, Q("13 mm")))
sketch14.addConstraint(Sketcher.Constraint("DistanceX", -1, 1, 0, 2, Q("56.03 mm")))
sketch14.setExpression("Constraints[8]", "Params.sketch14_width")
sketch14.setExpression("Constraints[9]", "Params.sketch14_height")
pad5 = doc.addObject("PartDesign::Pad", "Pad004")
body.addObject(pad5)
pad5.Profile = sketch14
pad5.setExpression("Length", "Params.pad5_length")

# Sketch on XY plane
sketch15 = doc.addObject("Sketcher::SketchObject", "Sketch014")
body.addObject(sketch15)
sketch15.AttachmentSupport = (doc.XY_Plane, [""])
sketch15.MapMode = "FlatFace"
sketch15.AttachmentOffset = App.Placement(Vector(0, 0, 15.2), App.Rotation())
add_polygon(sketch15, [(54, 28), (54, 40), (39, 40), (39, 28)])  # lines 0-3
sketch15.addConstraint(Sketcher.Constraint("Vertical", 0))
sketch15.addConstraint(Sketcher.Constraint("Horizontal", 1))
sketch15.addConstraint(Sketcher.Constraint("Vertical", 2))
sketch15.addConstraint(Sketcher.Constraint("Horizontal", 3))
sketch15.addConstraint(Sketcher.Constraint("DistanceY", 0, 1, 0, 2, Q("12 mm")))
sketch15.addConstraint(Sketcher.Constraint("DistanceX", 1, 2, 1, 1, Q("15.5 mm")))
sketch15.addConstraint(Sketcher.Constraint("DistanceY", -1, 1, 0, 2, Q("40 mm")))
sketch15.addConstraint(Sketcher.Constraint("DistanceX", -1, 1, 0, 2, Q("54.13 mm")))
sketch15.setExpression("Constraints[8]", "Params.sketch15_height")
sketch15.setExpression("Constraints[9]", "Params.sketch15_width")
pocket4 = doc.addObject("PartDesign::Pocket", "Pocket003")
body.addObject(pocket4)
pocket4.Profile = sketch15
pocket4.setExpression("Length", "Params.pocket4_length")

# Sketch on XZ plane
sketch16 = doc.addObject("Sketcher::SketchObject", "Sketch015")
body.addObject(sketch16)
sketch16.AttachmentSupport = (doc.XZ_Plane, [""])
sketch16.MapMode = "FlatFace"
sketch16.AttachmentOffset = App.Placement(Vector(0, 0, -29.4), App.Rotation())
add_polygon(sketch16, [(38.6, 11.9), (38.6, 10.9), (54.1, 10.9), (54.1, 11.9)])  # lines 0-3
sketch16.addConstraint(Sketcher.Constraint("Vertical", 0))
sketch16.addConstraint(Sketcher.Constraint("Horizontal", 1))
sketch16.addConstraint(Sketcher.Constraint("Vertical", 2))
sketch16.addConstraint(Sketcher.Constraint("Horizontal", 3))
sketch16.addConstraint(Sketcher.Constraint("DistanceY", 0, 2, 0, 1, Q("1 mm")))
sketch16.addConstraint(Sketcher.Constraint("DistanceX", 1, 1, 1, 2, Q("15.5 mm")))
sketch16.addConstraint(Sketcher.Constraint("DistanceX", -1, 1, 0, 2, Q("38.63 mm")))
sketch16.addConstraint(Sketcher.Constraint("DistanceY", -1, 1, 0, 2, Q("10.95 mm")))
sketch16.setExpression("Constraints[8]", "Params.sketch16_height")
sketch16.setExpression("Constraints[9]", "Params.sketch16_width")
pocket5 = doc.addObject("PartDesign::Pocket", "Pocket004")
body.addObject(pocket5)
pocket5.Profile = sketch16
pocket5.setExpression("Length", "Params.pocket5_length")

# Sketch on XY plane
sketch17 = doc.addObject("Sketcher::SketchObject", "Sketch016")
body.addObject(sketch17)
sketch17.AttachmentSupport = (doc.XY_Plane, [""])
sketch17.MapMode = "FlatFace"
sketch17.AttachmentOffset = App.Placement(Vector(0, 0, 11.95), App.Rotation())
sketch17.addGeometry(Part.Circle(Vector(46.4, 35.4, 0), Vector(0, 0, 1), 2), False)
sketch17.addConstraint(Sketcher.Constraint("Diameter", 0, Q("4 mm")))
sketch17.addConstraint(Sketcher.Constraint("DistanceX", -1, 1, 0, 3, Q("46.4 mm")))
sketch17.addConstraint(Sketcher.Constraint("DistanceY", -1, 1, 0, 3, Q("35.4 mm")))
sketch17.setExpression("Constraints[0]", "Params.sketch17_diameter")
doc.recompute()
hole7 = doc.addObject("PartDesign::Hole", "Hole006")
body.addObject(hole7)
hole7.Profile = sketch17
hole7.ThreadType = "None"
hole7.setExpression("Diameter", "Params.hole7_diameter")
hole7.DepthType = "Dimension"
hole7.setExpression("Depth", "Params.hole7_depth")
hole7.DrillPoint = "Flat"

doc.recompute()
